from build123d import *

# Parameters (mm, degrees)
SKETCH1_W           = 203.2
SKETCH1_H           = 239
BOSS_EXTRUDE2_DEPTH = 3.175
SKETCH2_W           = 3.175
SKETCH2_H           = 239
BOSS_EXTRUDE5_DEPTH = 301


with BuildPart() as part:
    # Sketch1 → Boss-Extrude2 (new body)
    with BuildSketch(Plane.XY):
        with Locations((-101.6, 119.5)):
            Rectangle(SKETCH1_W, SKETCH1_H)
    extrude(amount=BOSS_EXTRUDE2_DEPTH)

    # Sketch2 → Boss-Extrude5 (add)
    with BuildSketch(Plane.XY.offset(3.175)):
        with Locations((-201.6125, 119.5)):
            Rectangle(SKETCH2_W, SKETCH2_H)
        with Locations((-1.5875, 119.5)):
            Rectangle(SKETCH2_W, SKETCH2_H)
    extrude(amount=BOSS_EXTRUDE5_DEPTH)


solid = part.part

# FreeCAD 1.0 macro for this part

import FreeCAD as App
import Part
import Sketcher

V = App.Vector
Q = App.Units.Quantity

doc = App.newDocument("Part")
body = doc.addObject("PartDesign::Body", "Body")

sketch1 = body.newObject("Sketcher::SketchObject", "Sketch")
sketch1.AttachmentSupport = (doc.getObject("XY_Plane"), [""])
sketch1.MapMode = "FlatFace"
sketch1.addGeometry([
    Part.LineSegment(V(-203, 239, 0), V(-203, 0, 0)),
    Part.LineSegment(V(-203, 0, 0), V(0, 0, 0)),
    Part.LineSegment(V(0, 0, 0), V(0, 239, 0)),
    Part.LineSegment(V(0, 239, 0), V(-203, 239, 0)),
], False)
sketch1.addConstraint([
    Sketcher.Constraint("Coincident", 0, 2, 1, 1),
    Sketcher.Constraint("Coincident", 1, 2, 2, 1),
    Sketcher.Constraint("Coincident", 2, 2, 3, 1),
    Sketcher.Constraint("Coincident", 3, 2, 0, 1),
    Sketcher.Constraint("Vertical", 0),
    Sketcher.Constraint("Horizontal", 1),
    Sketcher.Constraint("Vertical", 2),
    Sketcher.Constraint("Horizontal", 3),
    Sketcher.Constraint("Coincident", 1, 2, -1, 1),
    Sketcher.Constraint("DistanceY", 0, 2, 0, 1, Q("239 mm")),
    Sketcher.Constraint("DistanceX", 1, 1, 1, 2, Q("203.2 mm")),
])
pad1 = body.newObject("PartDesign::Pad", "Pad")
pad1.Profile = sketch1
pad1.Length = 3.175

sketch2 = body.newObject("Sketcher::SketchObject", "Sketch001")
sketch2.AttachmentSupport = (doc.getObject("XY_Plane"), [""])
sketch2.MapMode = "FlatFace"
sketch2.AttachmentOffset = App.Placement(V(0, 0, 3.175), App.Rotation())
sketch2.addGeometry([
    Part.LineSegment(V(-203.2, 239, 0), V(-203.2, 0, 0)),
    Part.LineSegment(V(-203.2, 0, 0), V(-200, 0, 0)),
    Part.LineSegment(V(-200, 0, 0), V(-200, 239, 0)),
    Part.LineSegment(V(-200, 239, 0), V(-203.2, 239, 0)),
    Part.LineSegment(V(-3.2, 239, 0), V(-3.2, 0, 0)),
    Part.LineSegment(V(-3.2, 0, 0), V(0, 0, 0)),
    Part.LineSegment(V(0, 0, 0), V(0, 239, 0)),
    Part.LineSegment(V(0, 239, 0), V(-3.2, 239, 0)),
], False)
sketch2.addConstraint([
    Sketcher.Constraint("Coincident", 0, 2, 1, 1),
    Sketcher.Constraint("Coincident", 1, 2, 2, 1),
    Sketcher.Constraint("Coincident", 2, 2, 3, 1),
    Sketcher.Constraint("Coincident", 3, 2, 0, 1),
    Sketcher.Constraint("Coincident", 4, 2, 5, 1),
    Sketcher.Constraint("Coincident", 5, 2, 6, 1),
    Sketcher.Constraint("Coincident", 6, 2, 7, 1),
    Sketcher.Constraint("Coincident", 7, 2, 4, 1),
    Sketcher.Constraint("Vertical", 0),
    Sketcher.Constraint("Horizontal", 1),
    Sketcher.Constraint("Vertical", 2),
    Sketcher.Constraint("Horizontal", 3),
    Sketcher.Constraint("Vertical", 4),
    Sketcher.Constraint("Horizontal", 5),
    Sketcher.Constraint("Vertical", 6),
    Sketcher.Constraint("Horizontal", 7),
    Sketcher.Constraint("Coincident", 5, 2, -1, 1),
    Sketcher.Constraint("PointOnObject", 0, 2, -1),
    Sketcher.Constraint("Horizontal", 3, 2, 6, 2),
    Sketcher.Constraint("Equal", 3, 5),
    Sketcher.Constraint("DistanceY", 0, 2, 0, 1, Q("239 mm")),
    Sketcher.Constraint("DistanceX", 0, 2, -1, 1, Q("203.2 mm")),
    Sketcher.Constraint("DistanceX", 1, 1, 1, 2, Q("3.175 mm")),
])
pad2 = body.newObject("PartDesign::Pad", "Pad001")
pad2.Profile = sketch2
pad2.Length = 301

doc.recompute()
